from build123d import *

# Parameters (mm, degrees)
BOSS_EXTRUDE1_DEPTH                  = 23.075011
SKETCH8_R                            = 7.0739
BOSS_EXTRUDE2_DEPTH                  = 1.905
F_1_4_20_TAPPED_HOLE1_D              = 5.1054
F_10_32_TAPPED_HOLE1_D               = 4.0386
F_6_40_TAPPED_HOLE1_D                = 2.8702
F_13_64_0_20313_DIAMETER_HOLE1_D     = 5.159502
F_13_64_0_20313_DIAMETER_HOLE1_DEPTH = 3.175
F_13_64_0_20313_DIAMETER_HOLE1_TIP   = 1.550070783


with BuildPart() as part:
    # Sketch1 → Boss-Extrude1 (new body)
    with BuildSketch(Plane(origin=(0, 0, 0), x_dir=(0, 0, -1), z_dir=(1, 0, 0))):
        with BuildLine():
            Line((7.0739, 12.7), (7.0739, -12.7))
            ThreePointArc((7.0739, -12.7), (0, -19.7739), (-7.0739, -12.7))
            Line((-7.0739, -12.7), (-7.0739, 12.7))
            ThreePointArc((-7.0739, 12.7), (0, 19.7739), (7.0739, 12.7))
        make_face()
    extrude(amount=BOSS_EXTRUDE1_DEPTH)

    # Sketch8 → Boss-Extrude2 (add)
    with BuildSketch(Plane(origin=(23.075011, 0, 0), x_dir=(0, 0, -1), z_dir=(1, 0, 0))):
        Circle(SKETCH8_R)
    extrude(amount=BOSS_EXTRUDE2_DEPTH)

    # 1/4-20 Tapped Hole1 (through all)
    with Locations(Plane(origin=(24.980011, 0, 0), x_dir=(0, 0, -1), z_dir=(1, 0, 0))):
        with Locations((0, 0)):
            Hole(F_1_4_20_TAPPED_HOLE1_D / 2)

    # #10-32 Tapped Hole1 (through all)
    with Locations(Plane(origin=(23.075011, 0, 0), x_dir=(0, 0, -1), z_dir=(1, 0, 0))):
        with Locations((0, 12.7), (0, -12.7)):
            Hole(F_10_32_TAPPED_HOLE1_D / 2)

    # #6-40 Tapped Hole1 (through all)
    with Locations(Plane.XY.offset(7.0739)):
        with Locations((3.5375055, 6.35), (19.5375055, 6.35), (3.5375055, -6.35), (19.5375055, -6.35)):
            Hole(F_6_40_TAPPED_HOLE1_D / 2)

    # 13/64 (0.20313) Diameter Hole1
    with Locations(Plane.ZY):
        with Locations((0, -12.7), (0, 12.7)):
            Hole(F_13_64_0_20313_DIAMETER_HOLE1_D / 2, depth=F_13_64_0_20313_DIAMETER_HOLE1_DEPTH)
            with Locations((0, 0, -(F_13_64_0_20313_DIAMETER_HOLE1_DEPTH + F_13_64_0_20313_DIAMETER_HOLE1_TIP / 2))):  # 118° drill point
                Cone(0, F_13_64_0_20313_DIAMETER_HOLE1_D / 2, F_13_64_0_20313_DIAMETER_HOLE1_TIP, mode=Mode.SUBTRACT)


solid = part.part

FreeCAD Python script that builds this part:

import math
import FreeCAD as App
import Part
import Sketcher
from FreeCAD import Vector
Q = App.Units.Quantity

doc = App.newDocument("Part")
params = doc.addObject("Spreadsheet::Sheet", "Params")
for row, (alias, value) in enumerate([
    ("sketch1_width", "1 in"),
    ("pad1_length", "23.075011 mm"),
    ("sketch2_diameter", "0.557 in"),
    ("pad2_length", "0.075 in"),
    ("sketch3_diameter", "0.201 in"),
    ("hole_diameter", "0.201 in"),
    ("sketch4_diameter", "0.159 in"),
    ("hole2_diameter", "0.159 in"),
    ("sketch5_diameter", "0.113 in"),
    ("hole3_diameter", "0.113 in"),
    ("hole4_diameter", "5.159502 mm"),
    ("hole4_depth", "0.125 in"),
], start=1):
    params.set(f"A{row}", alias)
    params.set(f"B{row}", "=" + value)
    params.setAlias(f"B{row}", alias)

body = doc.addObject("PartDesign::Body", "Body")

sketch1 = body.newObject("Sketcher::SketchObject", "Sketch")
sketch1.AttachmentSupport = (doc.getObject("YZ_Plane"), [""])
sketch1.MapMode = "FlatFace"
sketch1.addGeometry(Part.LineSegment(Vector(-13, -7, 0), Vector(13, -7, 0)), False)
sketch1.addGeometry(Part.ArcOfCircle(Part.Circle(Vector(13, 0, 0), Vector(0, 0, 1), 7), math.radians(-90), math.radians(90)), False)
sketch1.addGeometry(Part.LineSegment(Vector(13, 7, 0), Vector(-13, 7, 0)), False)
sketch1.addGeometry(Part.ArcOfCircle(Part.Circle(Vector(-13, 0, 0), Vector(0, 0, 1), 7), math.radians(90), math.radians(270)), False)
sketch1.addConstraint(Sketcher.Constraint("Tangent", 0, 2, 1, 1))
sketch1.addConstraint(Sketcher.Constraint("Tangent", 1, 2, 2, 1))
sketch1.addConstraint(Sketcher.Constraint("Tangent", 2, 2, 3, 1))
sketch1.addConstraint(Sketcher.Constraint("Tangent", 3, 2, 0, 1))
sketch1.addConstraint(Sketcher.Constraint("Horizontal", 0))
sketch1.addConstraint(Sketcher.Constraint("Horizontal", 2))
sketch1.addConstraint(Sketcher.Constraint("Symmetric", 1, 3, 3, 3, -1, 1))
sketch1.addConstraint(Sketcher.Constraint("DistanceX", 0, 1, 0, 2, Q("1 in")))
sketch1.addConstraint(Sketcher.Constraint("Radius", 1, Q("0.2785 in")))
sketch1.setExpression("Constraints[7]", "Params.sketch1_width")
pad1 = body.newObject("PartDesign::Pad", "Pad")
pad1.Profile = sketch1
pad1.setExpression("Length", "Params.pad1_length")

sketch2 = body.newObject("Sketcher::SketchObject", "Sketch001")
sketch2.AttachmentSupport = (doc.getObject("YZ_Plane"), [""])
sketch2.MapMode = "FlatFace"
sketch2.AttachmentOffset = App.Placement(Vector(0, 0, 23.075011), App.Rotation())
sketch2.addGeometry(Part.Circle(Vector(0, 0, 0), Vector(0, 0, 1), 7), False)
sketch2.addConstraint(Sketcher.Constraint("Coincident", 0, 3, -1, 1))
sketch2.addConstraint(Sketcher.Constraint("Diameter", 0, Q("0.557 in")))
sketch2.setExpression("Constraints[1]", "Params.sketch2_diameter")
pad2 = body.newObject("PartDesign::Pad", "Pad001")
pad2.Profile = sketch2
pad2.setExpression("Length", "Params.pad2_length")

sketch3 = body.newObject("Sketcher::SketchObject", "Sketch002")
sketch3.AttachmentSupport = (doc.getObject("YZ_Plane"), [""])
sketch3.MapMode = "FlatFace"
sketch3.AttachmentOffset = App.Placement(Vector(0, 0, 24.980011), App.Rotation())
sketch3.addGeometry(Part.Circle(Vector(0, 0, 0), Vector(0, 0, 1), 2.6), False)
sketch3.addConstraint(Sketcher.Constraint("Coincident", 0, 3, -1, 1))
sketch3.addConstraint(Sketcher.Constraint("Diameter", 0, Q("0.201 in")))
sketch3.setExpression("Constraints[1]", "Params.sketch3_diameter")
doc.recompute()
hole = body.newObject("PartDesign::Hole", "Hole")
hole.Profile = sketch3
hole.ThreadType = "None"
hole.setExpression("Diameter", "Params.hole_diameter")
hole.DepthType = "ThroughAll"

sketch4 = body.newObject("Sketcher::SketchObject", "Sketch003")
sketch4.AttachmentSupport = (doc.getObject("YZ_Plane"), [""])
sketch4.MapMode = "FlatFace"
sketch4.AttachmentOffset = App.Placement(Vector(0, 0, 23.075011), App.Rotation())
sketch4.addGeometry(Part.Circle(Vector(12.7, 0, 0), Vector(0, 0, 1), 2), False)
sketch4.addGeometry(Part.Circle(Vector(-12.7, 0, 0), Vector(0, 0, 1), 2), False)
sketch4.addConstraint(Sketcher.Constraint("Equal", 0, 1))
sketch4.addConstraint(Sketcher.Constraint("Symmetric", 0, 3, 1, 3, -1, 1))
sketch4.addConstraint(Sketcher.Constraint("PointOnObject", 0, 3, -1))
sketch4.addConstraint(Sketcher.Constraint("Diameter", 0, Q("0.159 in")))
sketch4.addConstraint(Sketcher.Constraint("DistanceX", 1, 3, 0, 3, Q("1 in")))
sketch4.setExpression("Constraints[3]", "Params.sketch4_diameter")
doc.recompute()
hole2 = body.newObject("PartDesign::Hole", "Hole001")
hole2.Profile = sketch4
hole2.ThreadType = "None"
hole2.setExpression("Diameter", "Params.hole2_diameter")
hole2.DepthType = "ThroughAll"

sketch5 = body.newObject("Sketcher::SketchObject", "Sketch004")
sketch5.AttachmentSupport = (doc.getObject("XY_Plane"), [""])
sketch5.MapMode = "FlatFace"
sketch5.AttachmentOffset = App.Placement(Vector(0, 0, 0.2785 * 25.4), App.Rotation())
sketch5.addGeometry(Part.Circle(Vector(3.5, 6.3, 0), Vector(0, 0, 1), 1.4), False)
sketch5.addGeometry(Part.Circle(Vector(19.5, 6.3, 0), Vector(0, 0, 1), 1.4), False)
sketch5.addGeometry(Part.Circle(Vector(3.5, -6.3, 0), Vector(0, 0, 1), 1.4), False)
sketch5.addGeometry(Part.Circle(Vector(19.5, -6.3, 0), Vector(0, 0, 1), 1.4), False)
sketch5.addConstraint(Sketcher.Constraint("Equal", 0, 1))
sketch5.addConstraint(Sketcher.Constraint("Equal", 1, 2))
sketch5.addConstraint(Sketcher.Constraint("Equal", 2, 3))
sketch5.addConstraint(Sketcher.Constraint("Symmetric", 0, 3, 2, 3, -1))
sketch5.addConstraint(Sketcher.Constraint("Symmetric", 1, 3, 3, 3, -1))
sketch5.addConstraint(Sketcher.Constraint("Horizontal", 0, 3, 1, 3))
sketch5.addConstraint(Sketcher.Constraint("Diameter", 0, Q("0.113 in")))
sketch5.addConstraint(Sketcher.Constraint("DistanceY", 2, 3, 0, 3, Q("0.5 in")))
sketch5.addConstraint(Sketcher.Constraint("DistanceX", 0, 3, 1, 3, Q("16 mm")))
sketch5.addConstraint(Sketcher.Constraint("DistanceX", -1, 1, 0, 3, Q("3.537505 mm")))
sketch5.setExpression("Constraints[6]", "Params.sketch5_diameter")
doc.recompute()
hole3 = body.newObject("PartDesign::Hole", "Hole002")
hole3.Profile = sketch5
hole3.ThreadType = "None"
hole3.setExpression("Diameter", "Params.hole3_diameter")
hole3.DepthType = "ThroughAll"

sketch6 = body.newObject("Sketcher::SketchObject", "Sketch005")
sketch6.AttachmentSupport = (doc.getObject("YZ_Plane"), [""])
sketch6.MapMode = "FlatFace"
sketch6.addGeometry(Part.Circle(Vector(-12.7, 0, 0), Vector(0, 0, 1), 2.6), False)
sketch6.addGeometry(Part.Circle(Vector(12.7, 0, 0), Vector(0, 0, 1), 2.6), False)
sketch6.addConstraint(Sketcher.Constraint("Equal", 0, 1))
sketch6.addConstraint(Sketcher.Constraint("Symmetric", 0, 3, 1, 3, -1, 1))
sketch6.addConstraint(Sketcher.Constraint("PointOnObject", 0, 3, -1))
sketch6.addConstraint(Sketcher.Constraint("DistanceX", 0, 3, 1, 3, Q("1 in")))
sketch6.addConstraint(Sketcher.Constraint("Diameter", 0, Q("5.159502 mm")))
doc.recompute()
hole4 = body.newObject("PartDesign::Hole", "Hole003")
hole4.Profile = sketch6
hole4.ThreadType = "None"
hole4.setExpression("Diameter", "Params.hole4_diameter")
hole4.DepthType = "Dimension"
hole4.setExpression("Depth", "Params.hole4_depth")
hole4.DrillPoint = "Angled"
hole4.DrillPointAngle = 118
hole4.Reversed = True

doc.recompute()
